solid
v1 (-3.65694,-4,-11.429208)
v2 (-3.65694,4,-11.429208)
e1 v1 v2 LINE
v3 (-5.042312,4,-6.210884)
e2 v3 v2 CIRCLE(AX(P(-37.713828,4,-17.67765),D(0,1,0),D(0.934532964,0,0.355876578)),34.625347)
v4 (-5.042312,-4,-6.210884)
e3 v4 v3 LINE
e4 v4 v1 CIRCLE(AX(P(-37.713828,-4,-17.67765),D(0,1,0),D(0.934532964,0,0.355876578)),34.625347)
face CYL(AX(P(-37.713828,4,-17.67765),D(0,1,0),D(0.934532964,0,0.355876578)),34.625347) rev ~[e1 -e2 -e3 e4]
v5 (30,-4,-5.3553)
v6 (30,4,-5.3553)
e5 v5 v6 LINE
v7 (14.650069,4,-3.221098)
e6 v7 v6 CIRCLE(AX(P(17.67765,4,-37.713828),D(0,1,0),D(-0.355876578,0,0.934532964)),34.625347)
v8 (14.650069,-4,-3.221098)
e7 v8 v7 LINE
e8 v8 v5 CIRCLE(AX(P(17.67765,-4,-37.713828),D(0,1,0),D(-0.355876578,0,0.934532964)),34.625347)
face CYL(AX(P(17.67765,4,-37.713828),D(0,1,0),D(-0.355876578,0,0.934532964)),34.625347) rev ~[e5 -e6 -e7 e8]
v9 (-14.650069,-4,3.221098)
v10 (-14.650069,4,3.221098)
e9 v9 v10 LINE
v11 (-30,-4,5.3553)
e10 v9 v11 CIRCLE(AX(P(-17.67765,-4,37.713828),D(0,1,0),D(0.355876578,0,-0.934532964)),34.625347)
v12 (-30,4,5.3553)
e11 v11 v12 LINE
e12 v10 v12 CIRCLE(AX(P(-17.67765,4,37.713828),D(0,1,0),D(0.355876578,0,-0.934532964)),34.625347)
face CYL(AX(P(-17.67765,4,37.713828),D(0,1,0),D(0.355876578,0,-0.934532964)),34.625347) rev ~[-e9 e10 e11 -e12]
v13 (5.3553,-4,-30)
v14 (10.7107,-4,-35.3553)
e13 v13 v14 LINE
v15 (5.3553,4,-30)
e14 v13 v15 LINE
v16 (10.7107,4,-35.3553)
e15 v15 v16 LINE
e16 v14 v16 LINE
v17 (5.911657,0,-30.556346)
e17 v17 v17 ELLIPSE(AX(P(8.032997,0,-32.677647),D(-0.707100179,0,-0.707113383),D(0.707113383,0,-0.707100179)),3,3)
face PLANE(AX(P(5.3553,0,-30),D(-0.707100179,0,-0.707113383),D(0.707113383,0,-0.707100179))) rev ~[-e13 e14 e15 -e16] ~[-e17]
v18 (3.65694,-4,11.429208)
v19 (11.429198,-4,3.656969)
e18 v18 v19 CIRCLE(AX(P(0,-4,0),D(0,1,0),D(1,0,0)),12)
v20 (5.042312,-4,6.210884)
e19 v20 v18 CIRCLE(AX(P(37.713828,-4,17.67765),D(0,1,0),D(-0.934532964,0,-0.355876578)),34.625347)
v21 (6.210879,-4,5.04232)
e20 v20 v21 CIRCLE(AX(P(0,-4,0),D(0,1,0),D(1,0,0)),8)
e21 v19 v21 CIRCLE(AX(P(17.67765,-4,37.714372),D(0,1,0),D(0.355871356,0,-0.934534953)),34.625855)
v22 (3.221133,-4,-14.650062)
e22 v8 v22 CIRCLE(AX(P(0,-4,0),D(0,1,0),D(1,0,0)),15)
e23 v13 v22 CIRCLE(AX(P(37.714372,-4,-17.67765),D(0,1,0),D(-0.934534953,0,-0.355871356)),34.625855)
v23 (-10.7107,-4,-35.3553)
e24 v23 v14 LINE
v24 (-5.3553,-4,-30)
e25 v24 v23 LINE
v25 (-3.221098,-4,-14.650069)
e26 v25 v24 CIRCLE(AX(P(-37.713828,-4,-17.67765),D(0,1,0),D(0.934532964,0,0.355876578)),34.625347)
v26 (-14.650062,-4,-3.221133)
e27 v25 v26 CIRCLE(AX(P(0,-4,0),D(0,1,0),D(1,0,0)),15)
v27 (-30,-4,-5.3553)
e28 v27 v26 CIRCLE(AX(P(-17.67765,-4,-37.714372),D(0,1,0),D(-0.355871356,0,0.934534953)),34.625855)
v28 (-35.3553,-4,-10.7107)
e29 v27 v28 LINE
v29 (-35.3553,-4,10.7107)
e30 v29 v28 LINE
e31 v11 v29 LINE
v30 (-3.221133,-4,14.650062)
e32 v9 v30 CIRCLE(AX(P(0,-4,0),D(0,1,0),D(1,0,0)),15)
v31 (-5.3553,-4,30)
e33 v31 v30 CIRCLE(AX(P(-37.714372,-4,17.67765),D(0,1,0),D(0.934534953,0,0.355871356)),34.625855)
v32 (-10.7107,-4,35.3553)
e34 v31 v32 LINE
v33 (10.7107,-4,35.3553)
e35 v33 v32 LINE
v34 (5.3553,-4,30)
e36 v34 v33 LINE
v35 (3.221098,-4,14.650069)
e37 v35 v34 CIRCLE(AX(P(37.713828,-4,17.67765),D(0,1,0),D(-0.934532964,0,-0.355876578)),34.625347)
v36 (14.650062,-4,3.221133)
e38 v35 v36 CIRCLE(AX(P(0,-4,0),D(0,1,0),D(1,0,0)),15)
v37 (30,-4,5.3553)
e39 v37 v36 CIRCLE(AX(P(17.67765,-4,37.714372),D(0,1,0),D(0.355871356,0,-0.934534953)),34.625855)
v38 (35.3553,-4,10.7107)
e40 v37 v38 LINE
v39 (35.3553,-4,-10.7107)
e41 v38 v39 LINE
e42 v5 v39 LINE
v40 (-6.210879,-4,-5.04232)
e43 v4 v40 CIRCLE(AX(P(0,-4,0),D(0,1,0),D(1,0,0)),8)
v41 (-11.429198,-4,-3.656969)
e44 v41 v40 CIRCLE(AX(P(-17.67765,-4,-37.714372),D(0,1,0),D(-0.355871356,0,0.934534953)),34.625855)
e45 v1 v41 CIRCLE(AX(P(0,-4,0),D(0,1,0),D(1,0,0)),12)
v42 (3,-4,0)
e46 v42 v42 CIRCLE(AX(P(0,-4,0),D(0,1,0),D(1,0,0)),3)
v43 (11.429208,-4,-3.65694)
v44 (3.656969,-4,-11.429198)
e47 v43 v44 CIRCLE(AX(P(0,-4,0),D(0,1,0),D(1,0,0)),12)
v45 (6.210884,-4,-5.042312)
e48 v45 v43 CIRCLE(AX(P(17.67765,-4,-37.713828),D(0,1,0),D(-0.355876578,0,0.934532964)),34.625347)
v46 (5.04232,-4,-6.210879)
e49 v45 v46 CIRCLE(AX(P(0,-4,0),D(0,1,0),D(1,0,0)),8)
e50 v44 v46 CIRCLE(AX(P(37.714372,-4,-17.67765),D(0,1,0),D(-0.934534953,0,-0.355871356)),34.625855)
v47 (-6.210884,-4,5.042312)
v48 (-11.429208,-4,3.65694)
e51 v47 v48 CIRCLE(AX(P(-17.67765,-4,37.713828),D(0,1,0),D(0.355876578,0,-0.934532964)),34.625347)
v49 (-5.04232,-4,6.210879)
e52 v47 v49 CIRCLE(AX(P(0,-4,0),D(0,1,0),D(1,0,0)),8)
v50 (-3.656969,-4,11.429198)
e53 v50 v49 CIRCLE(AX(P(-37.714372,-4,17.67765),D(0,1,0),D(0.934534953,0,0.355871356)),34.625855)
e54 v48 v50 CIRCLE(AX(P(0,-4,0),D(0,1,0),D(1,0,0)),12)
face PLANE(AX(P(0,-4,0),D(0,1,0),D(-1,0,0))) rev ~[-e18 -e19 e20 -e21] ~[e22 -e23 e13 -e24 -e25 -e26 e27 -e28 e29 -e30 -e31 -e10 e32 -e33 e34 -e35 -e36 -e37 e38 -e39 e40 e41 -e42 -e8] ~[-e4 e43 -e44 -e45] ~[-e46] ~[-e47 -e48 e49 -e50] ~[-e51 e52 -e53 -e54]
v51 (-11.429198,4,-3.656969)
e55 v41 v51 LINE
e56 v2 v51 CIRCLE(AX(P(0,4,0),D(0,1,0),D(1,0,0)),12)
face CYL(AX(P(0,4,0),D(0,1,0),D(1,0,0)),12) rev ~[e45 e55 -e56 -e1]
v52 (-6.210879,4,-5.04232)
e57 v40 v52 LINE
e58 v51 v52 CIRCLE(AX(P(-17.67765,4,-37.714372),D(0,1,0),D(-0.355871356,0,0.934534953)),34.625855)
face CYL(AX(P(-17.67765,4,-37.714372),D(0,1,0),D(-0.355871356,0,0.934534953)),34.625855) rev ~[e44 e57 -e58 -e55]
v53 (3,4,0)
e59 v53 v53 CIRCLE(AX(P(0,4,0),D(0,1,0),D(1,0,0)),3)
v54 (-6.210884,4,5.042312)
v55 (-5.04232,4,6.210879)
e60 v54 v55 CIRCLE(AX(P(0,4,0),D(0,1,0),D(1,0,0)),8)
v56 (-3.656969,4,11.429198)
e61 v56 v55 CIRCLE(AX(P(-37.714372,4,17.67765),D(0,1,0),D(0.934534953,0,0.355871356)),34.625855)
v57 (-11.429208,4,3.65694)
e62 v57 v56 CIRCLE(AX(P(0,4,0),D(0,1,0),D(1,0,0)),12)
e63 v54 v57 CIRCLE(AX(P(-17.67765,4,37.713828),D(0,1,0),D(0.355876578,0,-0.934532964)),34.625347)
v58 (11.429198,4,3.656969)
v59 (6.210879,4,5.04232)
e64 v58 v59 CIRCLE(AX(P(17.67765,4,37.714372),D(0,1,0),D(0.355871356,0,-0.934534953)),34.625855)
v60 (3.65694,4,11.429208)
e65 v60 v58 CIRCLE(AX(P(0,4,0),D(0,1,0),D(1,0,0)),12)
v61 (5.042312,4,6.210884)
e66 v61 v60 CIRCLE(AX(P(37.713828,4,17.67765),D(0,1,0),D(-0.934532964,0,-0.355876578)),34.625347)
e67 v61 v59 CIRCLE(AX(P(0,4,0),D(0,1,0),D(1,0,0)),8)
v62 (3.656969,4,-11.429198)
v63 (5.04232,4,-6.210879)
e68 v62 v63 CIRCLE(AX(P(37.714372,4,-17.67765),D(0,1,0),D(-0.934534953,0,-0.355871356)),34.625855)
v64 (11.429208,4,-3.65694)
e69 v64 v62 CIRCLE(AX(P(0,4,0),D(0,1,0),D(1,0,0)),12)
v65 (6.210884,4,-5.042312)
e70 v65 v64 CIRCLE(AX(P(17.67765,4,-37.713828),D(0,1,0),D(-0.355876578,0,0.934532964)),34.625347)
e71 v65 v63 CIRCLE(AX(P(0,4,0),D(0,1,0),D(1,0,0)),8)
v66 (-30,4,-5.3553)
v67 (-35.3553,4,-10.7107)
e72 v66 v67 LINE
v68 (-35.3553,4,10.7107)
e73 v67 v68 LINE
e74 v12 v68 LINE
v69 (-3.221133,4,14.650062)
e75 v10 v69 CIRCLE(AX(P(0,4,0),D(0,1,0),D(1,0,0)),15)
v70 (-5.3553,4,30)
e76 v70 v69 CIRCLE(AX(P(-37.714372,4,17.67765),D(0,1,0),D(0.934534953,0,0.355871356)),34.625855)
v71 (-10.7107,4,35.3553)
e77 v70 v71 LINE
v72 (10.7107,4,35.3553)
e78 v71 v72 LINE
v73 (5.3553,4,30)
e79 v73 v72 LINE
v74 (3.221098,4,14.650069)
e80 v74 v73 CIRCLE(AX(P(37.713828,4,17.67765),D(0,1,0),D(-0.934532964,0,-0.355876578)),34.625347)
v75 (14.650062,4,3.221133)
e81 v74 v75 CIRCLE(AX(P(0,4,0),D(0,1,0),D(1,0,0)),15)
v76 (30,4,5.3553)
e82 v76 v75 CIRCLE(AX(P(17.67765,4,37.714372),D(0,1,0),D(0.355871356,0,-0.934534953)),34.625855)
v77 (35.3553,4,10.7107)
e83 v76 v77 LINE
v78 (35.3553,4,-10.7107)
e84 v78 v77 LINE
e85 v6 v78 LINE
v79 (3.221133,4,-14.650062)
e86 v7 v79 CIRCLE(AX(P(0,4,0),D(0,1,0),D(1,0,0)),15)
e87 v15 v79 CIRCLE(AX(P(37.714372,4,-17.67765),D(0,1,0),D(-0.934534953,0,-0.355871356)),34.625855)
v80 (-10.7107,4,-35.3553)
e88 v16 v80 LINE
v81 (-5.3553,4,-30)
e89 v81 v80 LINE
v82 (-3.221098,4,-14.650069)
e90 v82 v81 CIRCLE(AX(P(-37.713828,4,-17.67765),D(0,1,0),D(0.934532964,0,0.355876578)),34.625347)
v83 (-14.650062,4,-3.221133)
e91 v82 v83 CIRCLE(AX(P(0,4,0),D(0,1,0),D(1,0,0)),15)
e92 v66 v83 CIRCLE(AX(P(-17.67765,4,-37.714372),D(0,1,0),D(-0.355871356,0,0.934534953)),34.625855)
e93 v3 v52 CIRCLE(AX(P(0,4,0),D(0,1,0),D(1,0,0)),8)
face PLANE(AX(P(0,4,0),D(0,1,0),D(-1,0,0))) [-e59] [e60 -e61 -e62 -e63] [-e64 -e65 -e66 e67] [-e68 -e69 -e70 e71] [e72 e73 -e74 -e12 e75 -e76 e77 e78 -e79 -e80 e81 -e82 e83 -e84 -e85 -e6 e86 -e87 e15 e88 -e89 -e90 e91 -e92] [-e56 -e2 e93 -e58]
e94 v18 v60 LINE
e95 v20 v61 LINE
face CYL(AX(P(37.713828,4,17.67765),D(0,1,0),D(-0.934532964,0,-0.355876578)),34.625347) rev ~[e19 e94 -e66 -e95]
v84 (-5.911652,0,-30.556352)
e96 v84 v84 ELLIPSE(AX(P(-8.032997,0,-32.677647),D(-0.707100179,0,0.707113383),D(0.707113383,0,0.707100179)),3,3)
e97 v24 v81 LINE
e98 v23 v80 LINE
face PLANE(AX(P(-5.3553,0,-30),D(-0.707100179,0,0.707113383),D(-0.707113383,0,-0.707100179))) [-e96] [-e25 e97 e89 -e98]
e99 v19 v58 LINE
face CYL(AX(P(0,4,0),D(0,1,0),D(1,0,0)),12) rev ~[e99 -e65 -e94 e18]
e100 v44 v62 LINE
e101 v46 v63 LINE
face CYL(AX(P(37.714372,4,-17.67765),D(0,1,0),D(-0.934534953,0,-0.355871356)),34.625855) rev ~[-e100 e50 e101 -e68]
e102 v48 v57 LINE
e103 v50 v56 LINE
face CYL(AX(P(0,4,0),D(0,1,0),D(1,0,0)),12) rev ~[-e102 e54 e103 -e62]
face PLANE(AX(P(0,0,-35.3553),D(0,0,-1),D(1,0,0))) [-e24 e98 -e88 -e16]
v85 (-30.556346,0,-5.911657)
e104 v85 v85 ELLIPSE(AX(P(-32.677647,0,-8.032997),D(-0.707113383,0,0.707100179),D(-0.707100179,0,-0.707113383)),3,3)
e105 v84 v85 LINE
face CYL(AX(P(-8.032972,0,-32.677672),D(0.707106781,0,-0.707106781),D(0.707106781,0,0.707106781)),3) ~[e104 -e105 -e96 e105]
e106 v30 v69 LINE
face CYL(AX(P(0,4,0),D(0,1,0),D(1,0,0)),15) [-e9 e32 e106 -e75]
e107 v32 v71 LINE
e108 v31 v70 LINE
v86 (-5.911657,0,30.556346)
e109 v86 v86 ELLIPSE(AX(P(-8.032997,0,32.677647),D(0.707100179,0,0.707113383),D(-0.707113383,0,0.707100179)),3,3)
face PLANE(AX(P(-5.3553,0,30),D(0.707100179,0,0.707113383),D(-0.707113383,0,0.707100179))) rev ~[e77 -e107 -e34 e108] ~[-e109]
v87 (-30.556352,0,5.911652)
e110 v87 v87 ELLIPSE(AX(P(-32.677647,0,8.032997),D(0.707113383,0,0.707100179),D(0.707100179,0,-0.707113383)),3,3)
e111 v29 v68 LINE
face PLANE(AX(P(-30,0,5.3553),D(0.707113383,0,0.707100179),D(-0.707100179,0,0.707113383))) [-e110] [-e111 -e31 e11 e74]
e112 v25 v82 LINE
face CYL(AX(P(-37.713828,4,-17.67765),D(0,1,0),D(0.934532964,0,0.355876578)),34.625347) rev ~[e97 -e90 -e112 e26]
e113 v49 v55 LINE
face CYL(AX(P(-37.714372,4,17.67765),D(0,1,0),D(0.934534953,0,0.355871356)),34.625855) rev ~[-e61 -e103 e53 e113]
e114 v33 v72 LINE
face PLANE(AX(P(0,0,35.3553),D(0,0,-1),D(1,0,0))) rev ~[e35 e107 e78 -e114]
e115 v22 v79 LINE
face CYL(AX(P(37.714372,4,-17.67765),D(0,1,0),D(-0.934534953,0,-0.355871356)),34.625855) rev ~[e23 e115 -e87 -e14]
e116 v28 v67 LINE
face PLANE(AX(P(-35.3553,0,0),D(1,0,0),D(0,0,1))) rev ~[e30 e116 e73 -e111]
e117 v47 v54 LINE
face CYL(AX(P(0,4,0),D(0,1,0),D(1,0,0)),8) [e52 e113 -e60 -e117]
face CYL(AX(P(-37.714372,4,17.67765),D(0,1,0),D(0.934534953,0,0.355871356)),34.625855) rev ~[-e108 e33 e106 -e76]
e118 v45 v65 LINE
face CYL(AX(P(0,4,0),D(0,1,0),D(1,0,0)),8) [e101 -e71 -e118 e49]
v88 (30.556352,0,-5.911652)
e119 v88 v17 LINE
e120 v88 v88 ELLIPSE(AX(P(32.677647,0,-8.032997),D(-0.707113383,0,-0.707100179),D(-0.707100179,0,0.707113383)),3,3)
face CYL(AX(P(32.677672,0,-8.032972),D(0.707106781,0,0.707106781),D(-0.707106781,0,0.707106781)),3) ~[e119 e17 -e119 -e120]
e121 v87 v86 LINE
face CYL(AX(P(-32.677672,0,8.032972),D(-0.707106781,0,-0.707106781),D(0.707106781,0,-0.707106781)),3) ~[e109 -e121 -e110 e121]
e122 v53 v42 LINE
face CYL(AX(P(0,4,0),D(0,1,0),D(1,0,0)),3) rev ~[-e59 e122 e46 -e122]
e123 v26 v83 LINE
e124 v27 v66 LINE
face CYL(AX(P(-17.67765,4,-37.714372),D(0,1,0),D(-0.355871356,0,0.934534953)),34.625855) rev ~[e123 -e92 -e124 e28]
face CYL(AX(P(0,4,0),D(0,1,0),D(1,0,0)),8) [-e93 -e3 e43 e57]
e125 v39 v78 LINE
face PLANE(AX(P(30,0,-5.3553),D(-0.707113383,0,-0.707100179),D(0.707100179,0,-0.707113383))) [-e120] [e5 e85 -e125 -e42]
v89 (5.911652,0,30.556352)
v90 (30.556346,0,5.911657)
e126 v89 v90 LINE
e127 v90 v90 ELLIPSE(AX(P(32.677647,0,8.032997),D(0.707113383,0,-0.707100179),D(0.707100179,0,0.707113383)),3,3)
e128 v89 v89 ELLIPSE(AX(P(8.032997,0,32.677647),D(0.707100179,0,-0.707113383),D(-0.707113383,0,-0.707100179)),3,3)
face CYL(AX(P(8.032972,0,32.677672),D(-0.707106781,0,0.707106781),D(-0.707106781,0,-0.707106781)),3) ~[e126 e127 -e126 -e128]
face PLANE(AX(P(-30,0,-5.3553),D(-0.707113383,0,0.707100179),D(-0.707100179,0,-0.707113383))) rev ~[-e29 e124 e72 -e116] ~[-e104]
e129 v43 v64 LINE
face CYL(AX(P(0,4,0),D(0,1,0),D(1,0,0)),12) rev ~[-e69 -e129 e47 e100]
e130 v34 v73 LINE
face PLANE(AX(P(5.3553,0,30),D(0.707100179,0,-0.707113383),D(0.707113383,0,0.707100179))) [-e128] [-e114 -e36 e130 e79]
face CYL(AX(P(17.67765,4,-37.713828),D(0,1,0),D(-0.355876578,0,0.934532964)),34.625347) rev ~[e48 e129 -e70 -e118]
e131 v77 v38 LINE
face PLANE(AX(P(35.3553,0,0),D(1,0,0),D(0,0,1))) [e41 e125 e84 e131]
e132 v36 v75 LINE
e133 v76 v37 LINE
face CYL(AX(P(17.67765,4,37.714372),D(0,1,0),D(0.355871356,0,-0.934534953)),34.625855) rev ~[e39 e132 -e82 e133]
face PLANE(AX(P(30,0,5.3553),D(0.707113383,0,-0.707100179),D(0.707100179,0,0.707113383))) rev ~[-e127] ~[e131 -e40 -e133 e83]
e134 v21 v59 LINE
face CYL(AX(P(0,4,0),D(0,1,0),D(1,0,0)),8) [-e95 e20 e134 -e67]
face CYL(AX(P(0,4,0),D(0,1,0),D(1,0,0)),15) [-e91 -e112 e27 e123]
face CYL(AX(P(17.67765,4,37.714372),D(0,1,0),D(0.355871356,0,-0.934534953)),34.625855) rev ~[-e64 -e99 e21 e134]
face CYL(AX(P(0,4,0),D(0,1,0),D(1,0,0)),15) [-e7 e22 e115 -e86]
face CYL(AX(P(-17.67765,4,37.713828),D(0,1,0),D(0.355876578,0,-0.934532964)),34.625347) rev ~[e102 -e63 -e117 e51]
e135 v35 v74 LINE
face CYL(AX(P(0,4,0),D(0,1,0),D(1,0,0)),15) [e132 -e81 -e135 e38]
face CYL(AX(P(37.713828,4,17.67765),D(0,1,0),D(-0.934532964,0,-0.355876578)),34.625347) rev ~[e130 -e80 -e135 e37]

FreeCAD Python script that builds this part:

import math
import FreeCAD as App
import Part
import Sketcher
from FreeCAD import Vector


def add_polygon(sketch, points):
    """Adds a closed chain of lines whose ends are joined by coincident constraints."""
    first, n = sketch.GeometryCount, len(points)
    for a, b in zip(points, points[1:] + points[:1]):
        sketch.addGeometry(Part.LineSegment(App.Vector(*a, 0), App.Vector(*b, 0)), False)
    for i in range(n):
        sketch.addConstraint(Sketcher.Constraint("Coincident", first + i, 2, first + (i + 1) % n, 1))

doc = App.newDocument("Part")
body = doc.addObject("PartDesign::Body", "Body")

sketch1 = body.newObject("Sketcher::SketchObject", "Sketch")
sketch1.AttachmentSupport = (doc.getObject("XZ_Plane"), [""])
sketch1.MapMode = "FlatFace"
add_polygon(sketch1, [(35, 11), (35, -11), (30, -5), (5, -5), (5, -30), (11, -35), (-11, -35), (-5, -30), (-5, -5), (-30, -5), (-35, -11), (-35, 11), (-30, 5), (-5, 5), (-5, 30), (-11, 35), (11, 35), (5, 30), (5, 5), (30, 5)])
sketch1.addConstraint([
    Sketcher.Constraint("Vertical", 0),
    Sketcher.Constraint("Horizontal", 2),
    Sketcher.Constraint("Vertical", 3),
    Sketcher.Constraint("Horizontal", 5),
    Sketcher.Constraint("Vertical", 7),
    Sketcher.Constraint("Horizontal", 8),
    Sketcher.Constraint("Vertical", 10),
    Sketcher.Constraint("Horizontal", 12),
    Sketcher.Constraint("Vertical", 13),
    Sketcher.Constraint("Horizontal", 15),
    Sketcher.Constraint("Vertical", 17),
    Sketcher.Constraint("Horizontal", 18),
    Sketcher.Constraint("Symmetric", 0, 2, 10, 2, -1, 1),
    Sketcher.Constraint("Symmetric", 1, 2, 11, 2, -1, 1),
    Sketcher.Constraint("Symmetric", 3, 2, 13, 2, -1, 1),
    Sketcher.Constraint("Symmetric", 4, 2, 14, 2, -1, 1),
    Sketcher.Constraint("Symmetric", 6, 2, 16, 2, -1, 1),
    Sketcher.Constraint("Symmetric", 8, 2, 18, 2, -1, 1),
    Sketcher.Constraint("Symmetric", 3, 2, 6, 2, -2),
    Sketcher.Constraint("Symmetric", 1, 2, 8, 2, -2),
    Sketcher.Constraint("Parallel", 1, 4),
    Sketcher.Constraint("Perpendicular", 4, 6),
    Sketcher.Constraint("Parallel", 6, 9),
    Sketcher.Constraint("Perpendicular", 14, 16),
    Sketcher.Constraint("Parallel", 16, 19),
    Sketcher.Constraint("Horizontal", 0, 2, 9, 2),
    Sketcher.Constraint("Equal", 15, 0),
    Sketcher.Constraint("Equal", 18, 3),
    Sketcher.Constraint("Equal", 1, 4),
    Sketcher.Constraint("DistanceX", -1, 1, 1, 2, 30.0),
    Sketcher.Constraint("DistanceX", 2, 2, 0, 2, 30.0),
    Sketcher.Constraint("DistanceX", 2, 2, 2, 1, 24.6447),
])
pad1 = body.newObject("PartDesign::Pad", "Pad")
pad1.Profile = sketch1
pad1.Length = 8
pad1.Midplane = True

sketch2 = body.newObject("Sketcher::SketchObject", "Sketch001")
sketch2.Placement = App.Placement(Vector(5.3553, -4, 30), App.Rotation(Vector(-0.707106781, 0, -0.707106781), Vector(0, 0.999999999, 0), Vector(0.707106781, 0, -0.707106781), "ZXY"))
sketch2.addGeometry(Part.Circle(Vector(-3.8, 4, 0), Vector(0, 0, 1), 3), False)
sketch2.addConstraint([
    Sketcher.Constraint("Diameter", 0, 6.0),
    Sketcher.Constraint("DistanceY", -1, 1, 0, 3, 4.0),
    Sketcher.Constraint("DistanceX", 0, 3, -1, 1, 3.7868),
])
pad2 = body.newObject("PartDesign::Pad", "Pad001")
pad2.Profile = sketch2
pad2.Length = 35
doc.recompute()

polarpattern = body.newObject("PartDesign::PolarPattern", "PolarPattern")
polarpattern.Originals = [pad2]
polarpattern.Axis = (doc.getObject("Y_Axis"), [""])
polarpattern.Angle = 360
polarpattern.Occurrences = 4
body.Tip = polarpattern

sketch3 = body.newObject("Sketcher::SketchObject", "Sketch002")
sketch3.AttachmentSupport = (doc.getObject("XZ_Plane"), [""])
sketch3.MapMode = "FlatFace"
sketch3.AttachmentOffset = App.Placement(Vector(0, 0, -4), App.Rotation())
sketch3.addGeometry([
    Part.ArcOfCircle(Part.Circle(Vector(-18, 38, 0), Vector(0, 0, 1), 35), math.radians(-111), math.radians(-69)),
    Part.LineSegment(Vector(-30, 5, 0), Vector(-5, 5, 0)),
    Part.ArcOfCircle(Part.Circle(Vector(-38, 18, 0), Vector(0, 0, 1), 35), math.radians(-21), math.radians(21)),
    Part.LineSegment(Vector(-5, 5, 0), Vector(-5, 30, 0)),
    Part.LineSegment(Vector(-5, -5, 0), Vector(-30, -5, 0)),
    Part.ArcOfCircle(Part.Circle(Vector(-18, -38, 0), Vector(0, 0, 1), 35), math.radians(69), math.radians(111)),
    Part.LineSegment(Vector(-5, -30, 0), Vector(-5, -5, 0)),
    Part.ArcOfCircle(Part.Circle(Vector(-38, -18, 0), Vector(0, 0, 1), 35), math.radians(-21), math.radians(21)),
    Part.LineSegment(Vector(5, 30, 0), Vector(5, 5, 0)),
    Part.ArcOfCircle(Part.Circle(Vector(38, 18, 0), Vector(0, 0, 1), 35), math.radians(159), math.radians(201)),
    Part.ArcOfCircle(Part.Circle(Vector(18, 38, 0), Vector(0, 0, 1), 35), math.radians(-111), math.radians(-69)),
    Part.LineSegment(Vector(5, 5, 0), Vector(30, 5, 0)),
    Part.LineSegment(Vector(30, -5, 0), Vector(5, -5, 0)),
    Part.ArcOfCircle(Part.Circle(Vector(18, -38, 0), Vector(0, 0, 1), 35), math.radians(69), math.radians(111)),
    Part.ArcOfCircle(Part.Circle(Vector(38, -18, 0), Vector(0, 0, 1), 35), math.radians(159), math.radians(201)),
    Part.LineSegment(Vector(5, -5, 0), Vector(5, -30, 0)),
], False)
sketch3.addConstraint([
    Sketcher.Constraint("Coincident", 0, 1, 1, 1),
    Sketcher.Constraint("Coincident", 1, 2, 0, 2),
    Sketcher.Constraint("Coincident", 2, 1, 3, 1),
    Sketcher.Constraint("Coincident", 3, 2, 2, 2),
    Sketcher.Constraint("Coincident", 4, 1, 5, 1),
    Sketcher.Constraint("Coincident", 5, 2, 4, 2),
    Sketcher.Constraint("Coincident", 6, 1, 7, 1),
    Sketcher.Constraint("Coincident", 7, 2, 6, 2),
    Sketcher.Constraint("Coincident", 8, 1, 9, 1),
    Sketcher.Constraint("Coincident", 9, 2, 8, 2),
    Sketcher.Constraint("Coincident", 10, 1, 11, 1),
    Sketcher.Constraint("Coincident", 11, 2, 10, 2),
    Sketcher.Constraint("Coincident", 12, 1, 13, 1),
    Sketcher.Constraint("Coincident", 13, 2, 12, 2),
    Sketcher.Constraint("Coincident", 14, 1, 15, 1),
    Sketcher.Constraint("Coincident", 15, 2, 14, 2),
    Sketcher.Constraint("Horizontal", 1),
    Sketcher.Constraint("Vertical", 3),
    Sketcher.Constraint("Horizontal", 4),
    Sketcher.Constraint("Vertical", 6),
    Sketcher.Constraint("Vertical", 8),
    Sketcher.Constraint("Horizontal", 11),
    Sketcher.Constraint("Horizontal", 12),
    Sketcher.Constraint("Vertical", 15),
    Sketcher.Constraint("Coincident", 2, 1, 1, 2),
    Sketcher.Constraint("Coincident", 7, 2, 4, 1),
    Sketcher.Constraint("Coincident", 10, 1, 9, 2),
    Sketcher.Constraint("Coincident", 14, 1, 13, 2),
    Sketcher.Constraint("Equal", 0, 2),
    Sketcher.Constraint("Equal", 2, 5),
    Sketcher.Constraint("Equal", 5, 7),
    Sketcher.Constraint("Equal", 7, 9),
    Sketcher.Constraint("Equal", 9, 10),
    Sketcher.Constraint("Equal", 10, 13),
    Sketcher.Constraint("Equal", 13, 14),
    Sketcher.Constraint("Symmetric", 7, 3, 9, 3, -1, 1),
    Sketcher.Constraint("Symmetric", 5, 3, 10, 3, -1, 1),
    Sketcher.Constraint("Symmetric", 0, 3, 13, 3, -1, 1),
    Sketcher.Constraint("Symmetric", 2, 3, 14, 3, -1, 1),
    Sketcher.Constraint("Symmetric", 2, 3, 9, 3, -2),
    Sketcher.Constraint("Symmetric", 0, 3, 10, 3, -2),
    Sketcher.Constraint("Equal", 12, 3),
    Sketcher.Constraint("DistanceX", 0, 1, -1, 1, 30.0),
    Sketcher.Constraint("DistanceY", -1, 1, 3, 2, 30.0),
    Sketcher.Constraint("Radius", 0, 34.6256),
    Sketcher.Constraint("DistanceX", 1, 1, 1, 2, 24.6447),
])
pocket1 = body.newObject("PartDesign::Pocket", "Pocket")
pocket1.Profile = sketch3
pocket1.Length = 8
pocket1.Reversed = True

sketch4 = body.newObject("Sketcher::SketchObject", "Sketch003")
sketch4.AttachmentSupport = (doc.getObject("XZ_Plane"), [""])
sketch4.MapMode = "FlatFace"
sketch4.AttachmentOffset = App.Placement(Vector(0, 0, -4), App.Rotation())
sketch4.addGeometry([
    Part.Circle(Vector(0, 0, 0), Vector(0, 0, 1), 15),
    Part.Circle(Vector(0, 0, 0), Vector(0, 0, 1), 12),
    Part.Circle(Vector(0, 0, 0), Vector(0, 0, 1), 8),
], False)
sketch4.addConstraint([
    Sketcher.Constraint("Coincident", 0, 3, -1, 1),
    Sketcher.Constraint("Coincident", 1, 3, -1, 1),
    Sketcher.Constraint("Coincident", 2, 3, -1, 1),
    Sketcher.Constraint("Diameter", 0, 30.0),
    Sketcher.Constraint("Diameter", 1, 24.0),
    Sketcher.Constraint("Diameter", 2, 16.0),
])
pad3 = body.newObject("PartDesign::Pad", "Pad002")
pad3.Profile = sketch4
pad3.Length = 8

sketch5 = body.newObject("Sketcher::SketchObject", "Sketch004")
sketch5.AttachmentSupport = (doc.getObject("XZ_Plane"), [""])
sketch5.MapMode = "FlatFace"
sketch5.AttachmentOffset = App.Placement(Vector(0, 0, -4), App.Rotation())
sketch5.addGeometry(Part.Circle(Vector(0, 0, 0), Vector(0, 0, 1), 3), False)
sketch5.addConstraint([
    Sketcher.Constraint("Coincident", 0, 3, -1, 1),
    Sketcher.Constraint("Diameter", 0, 6.0),
])
pocket2 = body.newObject("PartDesign::Pocket", "Pocket001")
pocket2.Profile = sketch5
pocket2.Length = 8
pocket2.Reversed = True

doc.recompute()
